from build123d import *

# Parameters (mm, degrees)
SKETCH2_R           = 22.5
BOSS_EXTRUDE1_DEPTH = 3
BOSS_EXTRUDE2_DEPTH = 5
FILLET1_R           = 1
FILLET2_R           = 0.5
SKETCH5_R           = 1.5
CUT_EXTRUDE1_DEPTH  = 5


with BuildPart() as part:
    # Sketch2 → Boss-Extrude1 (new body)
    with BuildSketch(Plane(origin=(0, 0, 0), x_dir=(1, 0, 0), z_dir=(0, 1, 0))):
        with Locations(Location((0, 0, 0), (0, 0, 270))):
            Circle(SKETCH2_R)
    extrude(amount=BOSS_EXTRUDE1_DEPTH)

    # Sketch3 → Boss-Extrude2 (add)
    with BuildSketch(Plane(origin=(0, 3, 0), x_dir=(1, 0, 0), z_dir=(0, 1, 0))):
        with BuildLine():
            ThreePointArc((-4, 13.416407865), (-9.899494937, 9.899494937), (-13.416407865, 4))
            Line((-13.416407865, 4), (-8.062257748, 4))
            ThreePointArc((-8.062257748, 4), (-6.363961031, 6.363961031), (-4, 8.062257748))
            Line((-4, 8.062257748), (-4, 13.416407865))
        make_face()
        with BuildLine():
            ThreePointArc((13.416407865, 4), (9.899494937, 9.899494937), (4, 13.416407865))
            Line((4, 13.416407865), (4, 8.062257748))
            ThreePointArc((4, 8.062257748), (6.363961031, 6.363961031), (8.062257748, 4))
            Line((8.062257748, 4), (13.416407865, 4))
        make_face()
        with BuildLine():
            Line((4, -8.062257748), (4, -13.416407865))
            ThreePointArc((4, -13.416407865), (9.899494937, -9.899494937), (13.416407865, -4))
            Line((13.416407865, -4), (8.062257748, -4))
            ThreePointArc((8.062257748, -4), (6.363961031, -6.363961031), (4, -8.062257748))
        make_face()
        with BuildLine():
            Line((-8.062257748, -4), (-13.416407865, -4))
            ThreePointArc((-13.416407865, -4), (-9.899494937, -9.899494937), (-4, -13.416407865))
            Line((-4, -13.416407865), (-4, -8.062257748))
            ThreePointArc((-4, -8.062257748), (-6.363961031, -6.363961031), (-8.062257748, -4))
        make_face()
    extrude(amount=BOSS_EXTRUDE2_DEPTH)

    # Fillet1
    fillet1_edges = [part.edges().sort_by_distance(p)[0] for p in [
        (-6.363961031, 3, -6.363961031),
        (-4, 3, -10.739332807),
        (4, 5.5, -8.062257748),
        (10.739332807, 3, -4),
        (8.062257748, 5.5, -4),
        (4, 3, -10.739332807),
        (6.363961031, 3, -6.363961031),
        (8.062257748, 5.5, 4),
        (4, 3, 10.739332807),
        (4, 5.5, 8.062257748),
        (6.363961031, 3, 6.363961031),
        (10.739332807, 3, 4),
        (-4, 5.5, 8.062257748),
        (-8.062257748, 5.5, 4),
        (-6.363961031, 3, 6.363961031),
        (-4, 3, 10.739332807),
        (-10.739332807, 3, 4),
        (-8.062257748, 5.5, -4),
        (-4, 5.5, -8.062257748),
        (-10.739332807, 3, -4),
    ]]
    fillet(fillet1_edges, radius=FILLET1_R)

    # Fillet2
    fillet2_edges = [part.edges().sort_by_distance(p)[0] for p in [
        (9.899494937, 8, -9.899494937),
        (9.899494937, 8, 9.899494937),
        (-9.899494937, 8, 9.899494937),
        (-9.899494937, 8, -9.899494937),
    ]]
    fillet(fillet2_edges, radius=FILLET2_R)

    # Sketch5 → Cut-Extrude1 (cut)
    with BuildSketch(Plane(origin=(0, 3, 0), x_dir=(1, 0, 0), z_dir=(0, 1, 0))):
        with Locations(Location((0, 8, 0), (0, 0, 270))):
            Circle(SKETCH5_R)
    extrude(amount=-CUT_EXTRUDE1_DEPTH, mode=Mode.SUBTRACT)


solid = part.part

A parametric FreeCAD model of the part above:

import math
import FreeCAD as App
import Part
import Sketcher
from FreeCAD import Vector


def edges_at(feature, points):
    """Names of the edges that pass closest to the given points."""
    edges = feature.Shape.Edges
    near = lambda p: min(range(len(edges)), key=lambda i: edges[i].distToShape(Part.Vertex(*p))[0])
    return sorted({f"Edge{near(p) + 1}" for p in points})

doc = App.newDocument("Part")
body = doc.addObject("PartDesign::Body", "Body")

sketch1 = doc.addObject("Sketcher::SketchObject", "Sketch")
body.addObject(sketch1)
sketch1.AttachmentSupport = (doc.XZ_Plane, [""])
sketch1.MapMode = "FlatFace"
sketch1.addGeometry(Part.Circle(Vector(0, 0, 0), Vector(0, 0, 1), 22), False)
sketch1.addConstraint(Sketcher.Constraint("Coincident", 0, 3, -1, 1))
sketch1.addConstraint(Sketcher.Constraint("Diameter", 0, 45.0))
pad1 = doc.addObject("PartDesign::Pad", "Pad")
body.addObject(pad1)
pad1.Profile = sketch1
pad1.Length = 3
pad1.Reversed = True

sketch2 = doc.addObject("Sketcher::SketchObject", "Sketch001")
body.addObject(sketch2)
sketch2.AttachmentSupport = (doc.XZ_Plane, [""])
sketch2.MapMode = "FlatFace"
sketch2.AttachmentOffset = App.Placement(Vector(0, 0, -3), App.Rotation())
sketch2.addGeometry(Part.ArcOfCircle(Part.Circle(Vector(0, 0, 0), Vector(0, 0, 1), 14), math.radians(-163), math.radians(-107)), False)
sketch2.addGeometry(Part.LineSegment(Vector(-13, -4, 0), Vector(-8, -4, 0)), False)
sketch2.addGeometry(Part.ArcOfCircle(Part.Circle(Vector(0, 0, 0), Vector(0, 0, 1), 9), math.radians(-154), math.radians(-116)), False)
sketch2.addGeometry(Part.LineSegment(Vector(-4, -8, 0), Vector(-4, -13, 0)), False)
sketch2.addGeometry(Part.ArcOfCircle(Part.Circle(Vector(0, 0, 0), Vector(0, 0, 1), 14), math.radians(-73), math.radians(-17)), False)
sketch2.addGeometry(Part.LineSegment(Vector(4, -13, 0), Vector(4, -8, 0)), False)
sketch2.addGeometry(Part.ArcOfCircle(Part.Circle(Vector(0, 0, 0), Vector(0, 0, 1), 9), math.radians(-64), math.radians(-26)), False)
sketch2.addGeometry(Part.LineSegment(Vector(8, -4, 0), Vector(13, -4, 0)), False)
sketch2.addGeometry(Part.LineSegment(Vector(4, 8, 0), Vector(4, 13, 0)), False)
sketch2.addGeometry(Part.ArcOfCircle(Part.Circle(Vector(0, 0, 0), Vector(0, 0, 1), 14), math.radians(17), math.radians(73)), False)
sketch2.addGeometry(Part.LineSegment(Vector(13, 4, 0), Vector(8, 4, 0)), False)
sketch2.addGeometry(Part.ArcOfCircle(Part.Circle(Vector(0, 0, 0), Vector(0, 0, 1), 9), math.radians(26), math.radians(64)), False)
sketch2.addGeometry(Part.LineSegment(Vector(-8, 4, 0), Vector(-13, 4, 0)), False)
sketch2.addGeometry(Part.ArcOfCircle(Part.Circle(Vector(0, 0, 0), Vector(0, 0, 1), 14), math.radians(107), math.radians(163)), False)
sketch2.addGeometry(Part.LineSegment(Vector(-4, 13, 0), Vector(-4, 8, 0)), False)
sketch2.addGeometry(Part.ArcOfCircle(Part.Circle(Vector(0, 0, 0), Vector(0, 0, 1), 9), math.radians(116), math.radians(154)), False)
sketch2.addConstraint(Sketcher.Constraint("Coincident", 0, 1, 1, 1))
sketch2.addConstraint(Sketcher.Constraint("Coincident", 1, 2, 2, 1))
sketch2.addConstraint(Sketcher.Constraint("Coincident", 2, 2, 3, 1))
sketch2.addConstraint(Sketcher.Constraint("Coincident", 3, 2, 0, 2))
sketch2.addConstraint(Sketcher.Constraint("Coincident", 4, 1, 5, 1))
sketch2.addConstraint(Sketcher.Constraint("Coincident", 5, 2, 6, 1))
sketch2.addConstraint(Sketcher.Constraint("Coincident", 6, 2, 7, 1))
sketch2.addConstraint(Sketcher.Constraint("Coincident", 7, 2, 4, 2))
sketch2.addConstraint(Sketcher.Constraint("Coincident", 8, 2, 9, 2))
sketch2.addConstraint(Sketcher.Constraint("Coincident", 9, 1, 10, 1))
sketch2.addConstraint(Sketcher.Constraint("Coincident", 10, 2, 11, 1))
sketch2.addConstraint(Sketcher.Constraint("Coincident", 11, 2, 8, 1))
sketch2.addConstraint(Sketcher.Constraint("Coincident", 12, 2, 13, 2))
sketch2.addConstraint(Sketcher.Constraint("Coincident", 13, 1, 14, 1))
sketch2.addConstraint(Sketcher.Constraint("Coincident", 14, 2, 15, 1))
sketch2.addConstraint(Sketcher.Constraint("Coincident", 15, 2, 12, 1))
sketch2.addConstraint(Sketcher.Constraint("Horizontal", 1))
sketch2.addConstraint(Sketcher.Constraint("Vertical", 3))
sketch2.addConstraint(Sketcher.Constraint("Vertical", 5))
sketch2.addConstraint(Sketcher.Constraint("Horizontal", 7))
sketch2.addConstraint(Sketcher.Constraint("Vertical", 8))
sketch2.addConstraint(Sketcher.Constraint("Horizontal", 10))
sketch2.addConstraint(Sketcher.Constraint("Horizontal", 12))
sketch2.addConstraint(Sketcher.Constraint("Vertical", 14))
sketch2.addConstraint(Sketcher.Constraint("Coincident", 0, 3, -1, 1))
sketch2.addConstraint(Sketcher.Constraint("Coincident", 2, 3, -1, 1))
sketch2.addConstraint(Sketcher.Constraint("Coincident", 4, 3, -1, 1))
sketch2.addConstraint(Sketcher.Constraint("Coincident", 6, 3, -1, 1))
sketch2.addConstraint(Sketcher.Constraint("Coincident", 9, 3, -1, 1))
sketch2.addConstraint(Sketcher.Constraint("Coincident", 11, 3, -1, 1))
sketch2.addConstraint(Sketcher.Constraint("Coincident", 13, 3, -1, 1))
sketch2.addConstraint(Sketcher.Constraint("Coincident", 15, 3, -1, 1))
sketch2.addConstraint(Sketcher.Constraint("Equal", 0, 4))
sketch2.addConstraint(Sketcher.Constraint("Equal", 2, 6))
sketch2.addConstraint(Sketcher.Constraint("Equal", 4, 9))
sketch2.addConstraint(Sketcher.Constraint("Equal", 6, 11))
sketch2.addConstraint(Sketcher.Constraint("Equal", 9, 13))
sketch2.addConstraint(Sketcher.Constraint("Equal", 11, 15))
sketch2.addConstraint(Sketcher.Constraint("Horizontal", 3, 2, 4, 1))
sketch2.addConstraint(Sketcher.Constraint("Horizontal", 1, 2, 6, 2))
sketch2.addConstraint(Sketcher.Constraint("Horizontal", 10, 2, 12, 2))
sketch2.addConstraint(Sketcher.Constraint("Horizontal", 8, 2, 13, 1))
sketch2.addConstraint(Sketcher.Constraint("Vertical", 5, 2, 8, 2))
sketch2.addConstraint(Sketcher.Constraint("Vertical", 7, 2, 9, 1))
sketch2.addConstraint(Sketcher.Constraint("Equal", 12, 3))
sketch2.addConstraint(Sketcher.Constraint("Radius", 0, 14.0))
sketch2.addConstraint(Sketcher.Constraint("Radius", 2, 9.0))
sketch2.addConstraint(Sketcher.Constraint("DistanceY", 0, 1, -1, 1, 4.0))
pad2 = doc.addObject("PartDesign::Pad", "Pad001")
body.addObject(pad2)
pad2.Profile = sketch2
pad2.Length = 5
pad2.Reversed = True
doc.recompute()

fillet = doc.addObject("PartDesign::Fillet", "Fillet")
body.addObject(fillet)
fillet.Base = (pad2, edges_at(pad2, [
    (-6.364, 3, -6.364),
    (-4, 3, -10.739),
    (4, 5.5, -8.062),
    (10.739, 3, -4),
    (8.062, 5.5, -4),
    (4, 3, -10.739),
    (6.364, 3, -6.364),
    (8.062, 5.5, 4),
    (4, 3, 10.739),
    (4, 5.5, 8.062),
    (6.364, 3, 6.364),
    (10.739, 3, 4),
    (-4, 5.5, 8.062),
    (-8.062, 5.5, 4),
    (-6.364, 3, 6.364),
    (-4, 3, 10.739),
    (-10.739, 3, 4),
    (-8.062, 5.5, -4),
    (-4, 5.5, -8.062),
    (-10.739, 3, -4),
]))
fillet.Radius = 1
doc.recompute()

fillet2 = doc.addObject("PartDesign::Fillet", "Fillet001")
body.addObject(fillet2)
fillet2.Base = (fillet, edges_at(fillet, [
    (9.899, 8, -9.899),
    (9.899, 8, 9.899),
    (-9.899, 8, 9.899),
    (-9.899, 8, -9.899),
]))
fillet2.Radius = 0.5

sketch3 = doc.addObject("Sketcher::SketchObject", "Sketch002")
body.addObject(sketch3)
sketch3.AttachmentSupport = (doc.XZ_Plane, [""])
sketch3.MapMode = "FlatFace"
sketch3.AttachmentOffset = App.Placement(Vector(0, 0, -3), App.Rotation())
sketch3.addGeometry(Part.Circle(Vector(0, -8, 0), Vector(0, 0, 1), 1.5), False)
sketch3.addConstraint(Sketcher.Constraint("PointOnObject", 0, 3, -2))
sketch3.addConstraint(Sketcher.Constraint("Diameter", 0, 3.0))
sketch3.addConstraint(Sketcher.Constraint("DistanceY", 0, 3, -1, 1, 8.0))
pocket1 = doc.addObject("PartDesign::Pocket", "Pocket")
body.addObject(pocket1)
pocket1.Profile = sketch3
pocket1.Length = 5
pocket1.Reversed = True

doc.recompute()
